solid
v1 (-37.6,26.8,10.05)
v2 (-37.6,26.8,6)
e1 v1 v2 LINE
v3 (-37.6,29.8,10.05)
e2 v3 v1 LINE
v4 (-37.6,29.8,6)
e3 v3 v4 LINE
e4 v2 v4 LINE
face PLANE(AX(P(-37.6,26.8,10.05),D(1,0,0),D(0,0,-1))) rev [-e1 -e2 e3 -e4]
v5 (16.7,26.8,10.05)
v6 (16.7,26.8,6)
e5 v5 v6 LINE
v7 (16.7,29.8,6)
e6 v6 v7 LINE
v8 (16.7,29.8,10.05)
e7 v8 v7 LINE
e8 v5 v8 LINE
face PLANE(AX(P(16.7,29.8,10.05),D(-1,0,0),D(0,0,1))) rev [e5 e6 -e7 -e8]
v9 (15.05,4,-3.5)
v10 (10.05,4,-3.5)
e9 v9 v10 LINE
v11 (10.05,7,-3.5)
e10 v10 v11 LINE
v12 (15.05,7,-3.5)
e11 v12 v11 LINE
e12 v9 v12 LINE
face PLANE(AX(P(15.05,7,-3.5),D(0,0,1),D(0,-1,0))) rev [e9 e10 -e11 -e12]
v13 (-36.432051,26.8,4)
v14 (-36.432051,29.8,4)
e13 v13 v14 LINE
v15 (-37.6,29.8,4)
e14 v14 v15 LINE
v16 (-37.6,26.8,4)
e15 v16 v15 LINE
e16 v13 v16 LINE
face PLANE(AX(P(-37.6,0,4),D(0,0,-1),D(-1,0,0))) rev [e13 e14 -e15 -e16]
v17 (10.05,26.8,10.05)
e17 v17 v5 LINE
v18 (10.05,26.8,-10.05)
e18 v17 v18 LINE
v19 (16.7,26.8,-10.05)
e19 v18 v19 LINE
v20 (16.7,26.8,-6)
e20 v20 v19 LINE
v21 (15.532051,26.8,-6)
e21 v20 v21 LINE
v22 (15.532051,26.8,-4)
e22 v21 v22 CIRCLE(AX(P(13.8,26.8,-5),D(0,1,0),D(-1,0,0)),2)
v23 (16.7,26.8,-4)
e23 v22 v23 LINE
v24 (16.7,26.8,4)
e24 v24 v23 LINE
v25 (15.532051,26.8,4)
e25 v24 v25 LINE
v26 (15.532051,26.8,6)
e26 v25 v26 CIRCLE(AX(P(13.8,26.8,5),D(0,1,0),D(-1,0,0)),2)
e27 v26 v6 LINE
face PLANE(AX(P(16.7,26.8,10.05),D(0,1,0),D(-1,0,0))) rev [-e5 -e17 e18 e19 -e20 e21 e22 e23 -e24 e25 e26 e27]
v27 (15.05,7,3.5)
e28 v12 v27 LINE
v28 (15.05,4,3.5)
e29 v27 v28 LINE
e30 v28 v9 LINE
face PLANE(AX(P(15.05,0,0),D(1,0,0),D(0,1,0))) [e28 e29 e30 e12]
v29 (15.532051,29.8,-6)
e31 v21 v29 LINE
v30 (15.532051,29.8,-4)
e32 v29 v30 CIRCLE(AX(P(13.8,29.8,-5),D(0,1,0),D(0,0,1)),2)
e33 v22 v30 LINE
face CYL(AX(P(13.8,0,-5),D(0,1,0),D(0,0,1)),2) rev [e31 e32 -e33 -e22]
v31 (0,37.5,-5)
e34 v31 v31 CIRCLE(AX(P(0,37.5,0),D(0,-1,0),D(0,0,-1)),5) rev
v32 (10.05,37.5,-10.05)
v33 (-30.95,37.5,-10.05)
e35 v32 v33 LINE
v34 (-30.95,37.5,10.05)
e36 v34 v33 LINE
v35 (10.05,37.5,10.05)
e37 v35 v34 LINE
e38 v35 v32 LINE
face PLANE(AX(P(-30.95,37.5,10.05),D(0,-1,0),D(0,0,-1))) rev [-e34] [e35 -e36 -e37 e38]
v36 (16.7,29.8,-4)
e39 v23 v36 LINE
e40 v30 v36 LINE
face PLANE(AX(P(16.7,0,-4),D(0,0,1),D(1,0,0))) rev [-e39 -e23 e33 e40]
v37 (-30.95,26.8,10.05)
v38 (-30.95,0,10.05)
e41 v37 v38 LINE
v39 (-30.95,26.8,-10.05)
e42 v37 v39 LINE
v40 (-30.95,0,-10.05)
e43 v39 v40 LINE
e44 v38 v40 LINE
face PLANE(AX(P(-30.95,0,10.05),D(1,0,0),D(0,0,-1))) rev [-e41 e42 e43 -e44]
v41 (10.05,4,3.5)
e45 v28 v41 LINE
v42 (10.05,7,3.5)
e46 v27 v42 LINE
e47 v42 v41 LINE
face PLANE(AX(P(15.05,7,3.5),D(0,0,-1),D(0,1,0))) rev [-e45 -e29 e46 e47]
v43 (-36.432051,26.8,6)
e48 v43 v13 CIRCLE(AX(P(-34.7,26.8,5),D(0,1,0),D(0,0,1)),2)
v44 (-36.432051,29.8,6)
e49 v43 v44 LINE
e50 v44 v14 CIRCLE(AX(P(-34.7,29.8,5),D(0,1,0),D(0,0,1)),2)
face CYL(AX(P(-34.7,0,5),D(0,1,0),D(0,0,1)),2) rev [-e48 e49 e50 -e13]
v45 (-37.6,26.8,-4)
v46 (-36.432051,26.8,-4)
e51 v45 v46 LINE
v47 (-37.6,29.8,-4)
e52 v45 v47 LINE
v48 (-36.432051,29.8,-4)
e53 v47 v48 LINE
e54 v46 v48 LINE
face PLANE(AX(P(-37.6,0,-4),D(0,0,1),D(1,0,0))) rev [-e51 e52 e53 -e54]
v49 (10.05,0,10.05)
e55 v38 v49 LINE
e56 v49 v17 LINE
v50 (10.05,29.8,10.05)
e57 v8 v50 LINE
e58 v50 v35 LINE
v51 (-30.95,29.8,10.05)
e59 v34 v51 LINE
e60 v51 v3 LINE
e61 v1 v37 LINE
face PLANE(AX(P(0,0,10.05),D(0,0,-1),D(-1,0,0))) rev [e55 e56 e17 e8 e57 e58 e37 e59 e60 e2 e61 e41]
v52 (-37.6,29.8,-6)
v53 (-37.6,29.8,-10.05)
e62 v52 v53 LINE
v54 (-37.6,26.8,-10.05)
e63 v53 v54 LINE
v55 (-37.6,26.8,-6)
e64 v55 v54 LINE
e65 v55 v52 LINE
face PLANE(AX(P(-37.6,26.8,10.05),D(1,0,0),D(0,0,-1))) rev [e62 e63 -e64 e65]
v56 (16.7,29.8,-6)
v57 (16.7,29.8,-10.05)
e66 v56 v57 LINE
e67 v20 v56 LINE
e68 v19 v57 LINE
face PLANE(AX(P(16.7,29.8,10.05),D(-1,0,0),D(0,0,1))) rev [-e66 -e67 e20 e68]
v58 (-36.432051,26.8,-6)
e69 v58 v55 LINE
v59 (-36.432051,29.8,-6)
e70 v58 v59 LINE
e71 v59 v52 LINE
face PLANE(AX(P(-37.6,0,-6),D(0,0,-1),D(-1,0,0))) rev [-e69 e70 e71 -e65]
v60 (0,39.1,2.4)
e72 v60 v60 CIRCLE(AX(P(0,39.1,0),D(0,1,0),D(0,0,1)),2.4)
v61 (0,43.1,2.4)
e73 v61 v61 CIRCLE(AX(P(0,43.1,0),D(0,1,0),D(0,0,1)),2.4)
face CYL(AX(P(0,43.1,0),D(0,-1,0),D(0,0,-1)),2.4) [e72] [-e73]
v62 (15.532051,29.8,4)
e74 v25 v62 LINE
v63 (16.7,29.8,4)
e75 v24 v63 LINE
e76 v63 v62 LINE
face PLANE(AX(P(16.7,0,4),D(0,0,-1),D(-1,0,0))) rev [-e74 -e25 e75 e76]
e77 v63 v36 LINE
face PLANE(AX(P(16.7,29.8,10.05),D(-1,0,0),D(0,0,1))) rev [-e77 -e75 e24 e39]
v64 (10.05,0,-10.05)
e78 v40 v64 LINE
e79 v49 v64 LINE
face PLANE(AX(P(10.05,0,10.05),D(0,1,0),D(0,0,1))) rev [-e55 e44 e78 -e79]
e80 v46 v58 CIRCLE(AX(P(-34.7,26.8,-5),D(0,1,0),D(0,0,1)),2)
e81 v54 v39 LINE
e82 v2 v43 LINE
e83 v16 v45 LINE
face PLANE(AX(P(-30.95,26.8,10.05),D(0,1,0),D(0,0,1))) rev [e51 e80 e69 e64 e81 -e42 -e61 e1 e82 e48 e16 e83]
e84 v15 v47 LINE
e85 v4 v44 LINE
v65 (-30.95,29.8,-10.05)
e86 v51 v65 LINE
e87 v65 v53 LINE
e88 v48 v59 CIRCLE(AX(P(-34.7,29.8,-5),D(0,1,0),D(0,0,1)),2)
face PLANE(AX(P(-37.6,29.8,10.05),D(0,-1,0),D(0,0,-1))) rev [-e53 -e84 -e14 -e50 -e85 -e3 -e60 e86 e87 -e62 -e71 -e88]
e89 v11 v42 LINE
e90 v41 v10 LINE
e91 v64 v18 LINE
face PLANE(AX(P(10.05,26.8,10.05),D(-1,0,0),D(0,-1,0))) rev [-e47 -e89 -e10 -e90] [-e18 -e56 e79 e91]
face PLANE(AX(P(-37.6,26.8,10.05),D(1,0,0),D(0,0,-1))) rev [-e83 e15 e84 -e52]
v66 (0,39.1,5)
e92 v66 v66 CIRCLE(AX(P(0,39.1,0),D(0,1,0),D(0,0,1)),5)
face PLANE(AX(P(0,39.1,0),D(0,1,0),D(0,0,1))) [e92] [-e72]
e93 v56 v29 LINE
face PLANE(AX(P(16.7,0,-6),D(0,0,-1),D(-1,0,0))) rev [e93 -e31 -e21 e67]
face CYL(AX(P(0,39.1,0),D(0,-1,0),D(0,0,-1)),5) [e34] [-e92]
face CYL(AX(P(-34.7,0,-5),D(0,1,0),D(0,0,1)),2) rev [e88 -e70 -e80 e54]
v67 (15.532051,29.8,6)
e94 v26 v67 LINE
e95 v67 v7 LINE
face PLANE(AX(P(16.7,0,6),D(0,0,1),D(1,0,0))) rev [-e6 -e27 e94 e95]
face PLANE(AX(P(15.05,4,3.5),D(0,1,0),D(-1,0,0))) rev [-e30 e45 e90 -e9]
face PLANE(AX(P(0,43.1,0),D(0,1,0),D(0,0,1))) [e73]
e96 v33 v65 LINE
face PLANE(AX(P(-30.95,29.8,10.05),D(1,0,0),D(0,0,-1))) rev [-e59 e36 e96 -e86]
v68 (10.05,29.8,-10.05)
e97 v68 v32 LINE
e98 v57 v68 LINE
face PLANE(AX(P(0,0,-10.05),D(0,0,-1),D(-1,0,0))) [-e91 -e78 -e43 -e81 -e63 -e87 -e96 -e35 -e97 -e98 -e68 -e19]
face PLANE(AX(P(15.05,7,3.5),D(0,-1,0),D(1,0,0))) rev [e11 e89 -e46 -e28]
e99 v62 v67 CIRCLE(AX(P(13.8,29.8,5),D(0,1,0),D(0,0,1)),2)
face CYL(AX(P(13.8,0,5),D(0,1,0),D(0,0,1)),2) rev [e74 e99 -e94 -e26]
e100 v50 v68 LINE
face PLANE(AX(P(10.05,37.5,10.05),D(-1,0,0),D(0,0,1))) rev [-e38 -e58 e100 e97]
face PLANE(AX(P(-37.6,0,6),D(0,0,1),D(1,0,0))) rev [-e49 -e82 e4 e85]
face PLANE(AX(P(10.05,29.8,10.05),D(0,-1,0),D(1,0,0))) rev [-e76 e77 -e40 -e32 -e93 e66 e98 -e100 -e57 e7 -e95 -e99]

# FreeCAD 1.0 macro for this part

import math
import FreeCAD as App
import Part
import Sketcher
from FreeCAD import Vector


def add_polygon(sketch, points):
    """Adds a closed chain of lines whose ends are joined by coincident constraints."""
    first, n = sketch.GeometryCount, len(points)
    for a, b in zip(points, points[1:] + points[:1]):
        sketch.addGeometry(Part.LineSegment(App.Vector(*a, 0), App.Vector(*b, 0)), False)
    for i in range(n):
        sketch.addConstraint(Sketcher.Constraint("Coincident", first + i, 2, first + (i + 1) % n, 1))

doc = App.newDocument("Part")
body = doc.addObject("PartDesign::Body", "Body")

sketch1 = body.newObject("Sketcher::SketchObject", "Sketch")
sketch1.AttachmentSupport = (doc.getObject("XY_Plane"), [""])
sketch1.MapMode = "FlatFace"
sketch1.AttachmentOffset = App.Placement(Vector(0, 0, -10.05), App.Rotation())
add_polygon(sketch1, [(-30.9, 26.8), (-30.9, 0), (10.1, 0), (10.1, 26.8), (16.7, 26.8), (16.7, 29.8), (10.1, 29.8), (10.1, 37.5), (-30.9, 37.5), (-30.9, 29.8), (-37.6, 29.8), (-37.6, 26.8)])
sketch1.addConstraint([
    Sketcher.Constraint("Vertical", 0),
    Sketcher.Constraint("Horizontal", 1),
    Sketcher.Constraint("Vertical", 2),
    Sketcher.Constraint("Horizontal", 3),
    Sketcher.Constraint("Vertical", 4),
    Sketcher.Constraint("Horizontal", 5),
    Sketcher.Constraint("Vertical", 6),
    Sketcher.Constraint("Horizontal", 7),
    Sketcher.Constraint("Vertical", 8),
    Sketcher.Constraint("Horizontal", 9),
    Sketcher.Constraint("Vertical", 10),
    Sketcher.Constraint("Horizontal", 11),
    Sketcher.Constraint("PointOnObject", 0, 2, -1),
    Sketcher.Constraint("Horizontal", 5, 2, 8, 2),
    Sketcher.Constraint("Horizontal", 3, 2, 10, 2),
    Sketcher.Constraint("Vertical", 2, 2, 5, 2),
    Sketcher.Constraint("Vertical", 0, 2, 7, 2),
    Sketcher.Constraint("Equal", 5, 9),
    Sketcher.Constraint("DistanceX", 1, 1, 1, 2, 41.0),
    Sketcher.Constraint("DistanceY", 4, 1, 4, 2, 3.0),
    Sketcher.Constraint("DistanceY", 0, 2, 0, 1, 26.8),
    Sketcher.Constraint("DistanceY", 6, 1, 6, 2, 7.7),
    Sketcher.Constraint("DistanceX", 3, 1, 3, 2, 6.65),
    Sketcher.Constraint("DistanceX", -1, 1, 3, 2, 16.7),
])
pad1 = body.newObject("PartDesign::Pad", "Pad")
pad1.Profile = sketch1
pad1.Length = 20.1

sketch2 = body.newObject("Sketcher::SketchObject", "Sketch001")
sketch2.AttachmentSupport = (doc.getObject("XZ_Plane"), [""])
sketch2.MapMode = "FlatFace"
sketch2.AttachmentOffset = App.Placement(Vector(0, 0, -29.8), App.Rotation())
sketch2.addGeometry([
    Part.LineSegment(Vector(-37.6, -6, 0), Vector(-37.6, -4, 0)),
    Part.LineSegment(Vector(-37.6, -4, 0), Vector(-36.4, -4, 0)),
    Part.ArcOfCircle(Part.Circle(Vector(-34.7, -5, 0), Vector(0, 0, 1), 2), math.radians(-150), math.radians(150)),
    Part.LineSegment(Vector(-36.4, -6, 0), Vector(-37.6, -6, 0)),
    Part.LineSegment(Vector(15.5, 6, 0), Vector(16.7, 6, 0)),
    Part.LineSegment(Vector(16.7, 6, 0), Vector(16.7, 4, 0)),
    Part.LineSegment(Vector(16.7, 4, 0), Vector(15.5, 4, 0)),
    Part.ArcOfCircle(Part.Circle(Vector(13.8, 5, 0), Vector(0, 0, 1), 2), math.radians(30), math.radians(330)),
    Part.LineSegment(Vector(-37.6, 4, 0), Vector(-37.6, 6, 0)),
    Part.LineSegment(Vector(-37.6, 6, 0), Vector(-36.4, 6, 0)),
    Part.ArcOfCircle(Part.Circle(Vector(-34.7, 5, 0), Vector(0, 0, 1), 2), math.radians(-150), math.radians(150)),
    Part.LineSegment(Vector(-36.4, 4, 0), Vector(-37.6, 4, 0)),
    Part.LineSegment(Vector(15.5, -4, 0), Vector(16.7, -4, 0)),
    Part.LineSegment(Vector(16.7, -4, 0), Vector(16.7, -6, 0)),
    Part.LineSegment(Vector(16.7, -6, 0), Vector(15.5, -6, 0)),
    Part.ArcOfCircle(Part.Circle(Vector(13.8, -5, 0), Vector(0, 0, 1), 2), math.radians(30), math.radians(330)),
], False)
sketch2.addConstraint([
    Sketcher.Constraint("Coincident", 0, 2, 1, 1),
    Sketcher.Constraint("Coincident", 1, 2, 2, 2),
    Sketcher.Constraint("Coincident", 2, 1, 3, 1),
    Sketcher.Constraint("Coincident", 3, 2, 0, 1),
    Sketcher.Constraint("Coincident", 4, 2, 5, 1),
    Sketcher.Constraint("Coincident", 5, 2, 6, 1),
    Sketcher.Constraint("Coincident", 6, 2, 7, 2),
    Sketcher.Constraint("Coincident", 7, 1, 4, 1),
    Sketcher.Constraint("Coincident", 8, 2, 9, 1),
    Sketcher.Constraint("Coincident", 9, 2, 10, 2),
    Sketcher.Constraint("Coincident", 10, 1, 11, 1),
    Sketcher.Constraint("Coincident", 11, 2, 8, 1),
    Sketcher.Constraint("Coincident", 12, 2, 13, 1),
    Sketcher.Constraint("Coincident", 13, 2, 14, 1),
    Sketcher.Constraint("Coincident", 14, 2, 15, 2),
    Sketcher.Constraint("Coincident", 15, 1, 12, 1),
    Sketcher.Constraint("Vertical", 0),
    Sketcher.Constraint("Horizontal", 1),
    Sketcher.Constraint("Horizontal", 3),
    Sketcher.Constraint("Horizontal", 4),
    Sketcher.Constraint("Vertical", 5),
    Sketcher.Constraint("Horizontal", 6),
    Sketcher.Constraint("Vertical", 8),
    Sketcher.Constraint("Horizontal", 9),
    Sketcher.Constraint("Horizontal", 11),
    Sketcher.Constraint("Horizontal", 12),
    Sketcher.Constraint("Vertical", 13),
    Sketcher.Constraint("Horizontal", 14),
    Sketcher.Constraint("Equal", 2, 7),
    Sketcher.Constraint("Equal", 7, 10),
    Sketcher.Constraint("Equal", 10, 15),
    Sketcher.Constraint("Symmetric", 2, 3, 10, 3, -1),
    Sketcher.Constraint("Symmetric", 7, 3, 15, 3, -1),
    Sketcher.Constraint("Symmetric", 3, 2, 8, 2, -1),
    Sketcher.Constraint("Symmetric", 5, 2, 12, 2, -1),
    Sketcher.Constraint("Horizontal", 7, 3, 10, 3),
    Sketcher.Constraint("Horizontal", 7, 1, 8, 2),
    Sketcher.Constraint("Horizontal", 6, 2, 10, 1),
    Sketcher.Constraint("Horizontal", 1, 2, 12, 2),
    Sketcher.Constraint("Horizontal", 3, 2, 13, 2),
    Sketcher.Constraint("Vertical", 1, 2, 2, 1),
    Sketcher.Constraint("Equal", 3, 4),
    Sketcher.Constraint("Radius", 2, 2.0),
    Sketcher.Constraint("DistanceY", 0, 1, 0, 2, 2.0),
    Sketcher.Constraint("DistanceY", 2, 3, -1, 1, 5.0),
    Sketcher.Constraint("DistanceX", 2, 3, -1, 1, 34.7),
    Sketcher.Constraint("DistanceX", -1, 1, 7, 3, 13.8),
    Sketcher.Constraint("DistanceX", 0, 2, -1, 1, 37.6),
])
pocket1 = body.newObject("PartDesign::Pocket", "Pocket")
pocket1.Profile = sketch2
pocket1.Type = "ThroughAll"
pocket1.Reversed = True

sketch3 = body.newObject("Sketcher::SketchObject", "Sketch002")
sketch3.AttachmentSupport = (doc.getObject("XZ_Plane"), [""])
sketch3.MapMode = "FlatFace"
sketch3.AttachmentOffset = App.Placement(Vector(0, 0, -37.5), App.Rotation())
sketch3.addGeometry(Part.Circle(Vector(0, 0, 0), Vector(0, 0, 1), 5), False)
sketch3.addConstraint([
    Sketcher.Constraint("Coincident", 0, 3, -1, 1),
    Sketcher.Constraint("Diameter", 0, 10.0),
])
pad2 = body.newObject("PartDesign::Pad", "Pad001")
pad2.Profile = sketch3
pad2.Length = 1.6
pad2.Reversed = True

sketch4 = body.newObject("Sketcher::SketchObject", "Sketch003")
sketch4.AttachmentSupport = (doc.getObject("XZ_Plane"), [""])
sketch4.MapMode = "FlatFace"
sketch4.AttachmentOffset = App.Placement(Vector(0, 0, -39.1), App.Rotation())
sketch4.addGeometry(Part.Circle(Vector(0, 0, 0), Vector(0, 0, 1), 2.4), False)
sketch4.addConstraint([
    Sketcher.Constraint("Coincident", 0, 3, -1, 1),
    Sketcher.Constraint("Diameter", 0, 4.8),
])
pad3 = body.newObject("PartDesign::Pad", "Pad002")
pad3.Profile = sketch4
pad3.Length = 4
pad3.Reversed = True

sketch5 = body.newObject("Sketcher::SketchObject", "Sketch004")
sketch5.AttachmentSupport = (doc.getObject("YZ_Plane"), [""])
sketch5.MapMode = "FlatFace"
sketch5.AttachmentOffset = App.Placement(Vector(0, 0, 10.05), App.Rotation())
add_polygon(sketch5, [(7, 3.5), (4, 3.5), (4, -3.5), (7, -3.5)])
sketch5.addConstraint([
    Sketcher.Constraint("Horizontal", 0),
    Sketcher.Constraint("Vertical", 1),
    Sketcher.Constraint("Horizontal", 2),
    Sketcher.Constraint("Vertical", 3),
    Sketcher.Constraint("DistanceX", 0, 2, 0, 1, 3.0),
    Sketcher.Constraint("DistanceY", 1, 2, 1, 1, 7.0),
    Sketcher.Constraint("DistanceX", -1, 1, 0, 2, 4.0),
    Sketcher.Constraint("DistanceY", -1, 1, 0, 2, 3.5),
])
pad4 = body.newObject("PartDesign::Pad", "Pad003")
pad4.Profile = sketch5
pad4.Length = 5

doc.recompute()
